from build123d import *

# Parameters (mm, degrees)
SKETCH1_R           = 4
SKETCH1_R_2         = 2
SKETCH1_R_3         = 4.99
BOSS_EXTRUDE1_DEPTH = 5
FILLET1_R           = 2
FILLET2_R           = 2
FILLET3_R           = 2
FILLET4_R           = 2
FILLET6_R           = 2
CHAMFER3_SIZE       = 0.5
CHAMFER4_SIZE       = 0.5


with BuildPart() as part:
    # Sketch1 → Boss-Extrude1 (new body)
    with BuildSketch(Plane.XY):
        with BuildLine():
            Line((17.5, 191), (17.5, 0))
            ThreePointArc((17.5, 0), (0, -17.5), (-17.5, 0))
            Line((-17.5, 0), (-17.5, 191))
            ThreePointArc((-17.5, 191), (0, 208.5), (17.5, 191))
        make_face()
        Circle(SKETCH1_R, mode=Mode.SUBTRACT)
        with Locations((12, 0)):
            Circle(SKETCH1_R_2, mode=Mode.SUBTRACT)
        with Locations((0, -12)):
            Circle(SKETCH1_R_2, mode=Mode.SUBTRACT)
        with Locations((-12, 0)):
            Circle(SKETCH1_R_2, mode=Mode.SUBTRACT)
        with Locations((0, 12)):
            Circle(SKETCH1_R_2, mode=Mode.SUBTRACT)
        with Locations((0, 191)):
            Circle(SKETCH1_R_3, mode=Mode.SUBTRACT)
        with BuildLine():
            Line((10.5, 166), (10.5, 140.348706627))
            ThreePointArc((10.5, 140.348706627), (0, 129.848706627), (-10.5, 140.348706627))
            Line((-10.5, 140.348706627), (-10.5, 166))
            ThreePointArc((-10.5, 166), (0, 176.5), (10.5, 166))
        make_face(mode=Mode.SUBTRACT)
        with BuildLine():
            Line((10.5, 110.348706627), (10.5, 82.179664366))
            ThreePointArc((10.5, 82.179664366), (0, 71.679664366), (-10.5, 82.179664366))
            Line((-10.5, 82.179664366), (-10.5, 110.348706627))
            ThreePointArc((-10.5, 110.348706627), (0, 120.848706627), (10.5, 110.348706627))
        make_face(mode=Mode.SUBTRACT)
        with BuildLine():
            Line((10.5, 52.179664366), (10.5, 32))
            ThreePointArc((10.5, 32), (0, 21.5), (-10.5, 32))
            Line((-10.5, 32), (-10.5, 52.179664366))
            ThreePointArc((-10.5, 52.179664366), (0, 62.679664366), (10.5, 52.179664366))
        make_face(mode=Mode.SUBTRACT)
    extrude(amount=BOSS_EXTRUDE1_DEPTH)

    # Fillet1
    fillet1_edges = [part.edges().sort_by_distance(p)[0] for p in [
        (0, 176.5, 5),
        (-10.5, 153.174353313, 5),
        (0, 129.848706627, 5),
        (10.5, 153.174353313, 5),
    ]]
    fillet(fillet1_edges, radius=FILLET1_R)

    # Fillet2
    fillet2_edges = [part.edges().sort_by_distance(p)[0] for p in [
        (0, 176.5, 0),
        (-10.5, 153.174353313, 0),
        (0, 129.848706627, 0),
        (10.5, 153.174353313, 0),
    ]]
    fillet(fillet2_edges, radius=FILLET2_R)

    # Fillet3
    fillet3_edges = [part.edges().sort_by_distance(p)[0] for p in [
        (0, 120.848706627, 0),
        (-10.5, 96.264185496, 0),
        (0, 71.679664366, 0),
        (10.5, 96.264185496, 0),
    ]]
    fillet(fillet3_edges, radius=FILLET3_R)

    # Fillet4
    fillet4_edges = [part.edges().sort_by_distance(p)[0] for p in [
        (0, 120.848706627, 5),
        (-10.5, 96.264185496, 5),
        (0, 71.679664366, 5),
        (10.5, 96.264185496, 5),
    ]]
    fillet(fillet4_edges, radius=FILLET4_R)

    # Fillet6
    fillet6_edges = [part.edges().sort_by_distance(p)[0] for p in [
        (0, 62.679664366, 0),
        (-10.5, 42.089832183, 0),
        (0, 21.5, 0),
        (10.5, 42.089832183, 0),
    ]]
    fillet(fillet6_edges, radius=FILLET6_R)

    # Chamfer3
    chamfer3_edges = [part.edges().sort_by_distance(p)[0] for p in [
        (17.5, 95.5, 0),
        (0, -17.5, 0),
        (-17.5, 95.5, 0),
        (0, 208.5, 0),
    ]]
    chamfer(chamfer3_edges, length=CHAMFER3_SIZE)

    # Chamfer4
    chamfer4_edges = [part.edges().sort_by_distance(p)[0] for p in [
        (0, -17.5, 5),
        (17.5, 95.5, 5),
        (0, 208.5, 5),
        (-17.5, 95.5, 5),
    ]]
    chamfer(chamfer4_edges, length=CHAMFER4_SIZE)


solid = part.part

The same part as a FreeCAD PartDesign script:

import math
import FreeCAD as App
import Part
import Sketcher
from FreeCAD import Vector
Q = App.Units.Quantity


def edges_at(feature, points):
    """Names of the edges that pass closest to the given points."""
    edges = feature.Shape.Edges
    near = lambda p: min(range(len(edges)), key=lambda i: edges[i].distToShape(Part.Vertex(*p))[0])
    return sorted({f"Edge{near(p) + 1}" for p in points})

doc = App.newDocument("Part")
params = doc.addObject("Spreadsheet::Sheet", "Params")
for row, (alias, value) in enumerate([
    ("sketch1_diameter", "4 mm"),
    ("sketch1_diameter2", "8 mm"),
    ("sketch1_radius", "17.5 mm"),
    ("sketch1_radius2", "10.5 mm"),
    ("sketch1_diameter3", "9.98 mm"),
    ("pad1_length", "5 mm"),
    ("fillet_radius", "2 mm"),
    ("fillet2_radius", "2 mm"),
    ("fillet3_radius", "2 mm"),
    ("fillet4_radius", "2 mm"),
    ("fillet5_radius", "2 mm"),
    ("chamfer_size", "0.5 mm"),
    ("chamfer2_size", "0.5 mm"),
], start=1):
    params.set(f"A{row}", alias)
    params.set(f"B{row}", "=" + value)
    params.setAlias(f"B{row}", alias)

body = doc.addObject("PartDesign::Body", "Body")

# Sketch on XY plane
sketch1 = doc.addObject("Sketcher::SketchObject", "Sketch")
body.addObject(sketch1)
sketch1.AttachmentSupport = (doc.XY_Plane, [""])
sketch1.MapMode = "FlatFace"
sketch1.addGeometry([
    Part.LineSegment(Vector(17.5, 0, 0), Vector(17.5, 191, 0)),  # 0
    Part.ArcOfCircle(Part.Circle(Vector(0, 191, 0), Vector(0, 0, 1), 17.5), math.radians(0), math.radians(180)),  # 1
    Part.LineSegment(Vector(-17.5, 191, 0), Vector(-17.5, 0, 0)),  # 2
    Part.ArcOfCircle(Part.Circle(Vector(0, 0, 0), Vector(0, 0, 1), 17.5), math.radians(180), math.radians(360)),  # 3
    Part.Circle(Vector(12, 0, 0), Vector(0, 0, 1), 2),  # 4
    Part.Circle(Vector(0, -12, 0), Vector(0, 0, 1), 2),  # 5
    Part.Circle(Vector(0, 0, 0), Vector(0, 0, 1), 4),  # 6
    Part.Circle(Vector(0, 12, 0), Vector(0, 0, 1), 2),  # 7
    Part.Circle(Vector(-12, 0, 0), Vector(0, 0, 1), 2),  # 8
    Part.LineSegment(Vector(10.5, 52.2, 0), Vector(10.5, 32, 0)),  # 9
    Part.ArcOfCircle(Part.Circle(Vector(0, 32, 0), Vector(0, 0, 1), 10.5), math.radians(180), math.radians(360)),  # 10
    Part.LineSegment(Vector(-10.5, 32, 0), Vector(-10.5, 52.2, 0)),  # 11
    Part.ArcOfCircle(Part.Circle(Vector(0, 52.2, 0), Vector(0, 0, 1), 10.5), math.radians(0), math.radians(180)),  # 12
    Part.LineSegment(Vector(10.5, 110.3, 0), Vector(10.5, 82.2, 0)),  # 13
    Part.ArcOfCircle(Part.Circle(Vector(0, 82.2, 0), Vector(0, 0, 1), 10.5), math.radians(180), math.radians(360)),  # 14
    Part.LineSegment(Vector(-10.5, 82.2, 0), Vector(-10.5, 110.3, 0)),  # 15
    Part.ArcOfCircle(Part.Circle(Vector(0, 110.3, 0), Vector(0, 0, 1), 10.5), math.radians(0), math.radians(180)),  # 16
    Part.LineSegment(Vector(10.5, 166, 0), Vector(10.5, 140.3, 0)),  # 17
    Part.ArcOfCircle(Part.Circle(Vector(0, 140.3, 0), Vector(0, 0, 1), 10.5), math.radians(180), math.radians(360)),  # 18
    Part.LineSegment(Vector(-10.5, 140.3, 0), Vector(-10.5, 166, 0)),  # 19
    Part.ArcOfCircle(Part.Circle(Vector(0, 166, 0), Vector(0, 0, 1), 10.5), math.radians(0), math.radians(180)),  # 20
    Part.Circle(Vector(0, 191, 0), Vector(0, 0, 1), 5),  # 21
], False)
sketch1.addConstraint([
    Sketcher.Constraint("Tangent", 0, 2, 1, 1),
    Sketcher.Constraint("Tangent", 1, 2, 2, 1),
    Sketcher.Constraint("Tangent", 2, 2, 3, 1),
    Sketcher.Constraint("Tangent", 3, 2, 0, 1),
    Sketcher.Constraint("Tangent", 9, 2, 10, 2),
    Sketcher.Constraint("Tangent", 10, 1, 11, 1),
    Sketcher.Constraint("Tangent", 11, 2, 12, 2),
    Sketcher.Constraint("Tangent", 12, 1, 9, 1),
    Sketcher.Constraint("Tangent", 13, 2, 14, 2),
    Sketcher.Constraint("Tangent", 14, 1, 15, 1),
    Sketcher.Constraint("Tangent", 15, 2, 16, 2),
    Sketcher.Constraint("Tangent", 16, 1, 13, 1),
    Sketcher.Constraint("Tangent", 17, 2, 18, 2),
    Sketcher.Constraint("Tangent", 18, 1, 19, 1),
    Sketcher.Constraint("Tangent", 19, 2, 20, 2),
    Sketcher.Constraint("Tangent", 20, 1, 17, 1),
    Sketcher.Constraint("Vertical", 0),
    Sketcher.Constraint("Vertical", 2),
    Sketcher.Constraint("Vertical", 9),
    Sketcher.Constraint("Vertical", 11),
    Sketcher.Constraint("Vertical", 13),
    Sketcher.Constraint("Vertical", 15),
    Sketcher.Constraint("Vertical", 17),
    Sketcher.Constraint("Vertical", 19),
    Sketcher.Constraint("Coincident", 3, 3, -1, 1),
    Sketcher.Constraint("Coincident", 6, 3, -1, 1),
    Sketcher.Constraint("Coincident", 21, 3, 1, 3),
    Sketcher.Constraint("Equal", 4, 5),
    Sketcher.Constraint("Equal", 5, 7),
    Sketcher.Constraint("Equal", 7, 8),
    Sketcher.Constraint("Equal", 12, 14),
    Sketcher.Constraint("Equal", 16, 18),
    Sketcher.Constraint("Symmetric", 5, 3, 7, 3, -1, 1),
    Sketcher.Constraint("Symmetric", 4, 3, 8, 3, -1, 1),
    Sketcher.Constraint("PointOnObject", 4, 3, -1),
    Sketcher.Constraint("PointOnObject", 5, 3, -2),
    Sketcher.Constraint("PointOnObject", 10, 3, -2),
    Sketcher.Constraint("PointOnObject", 14, 3, -2),
    Sketcher.Constraint("PointOnObject", 18, 3, -2),
    Sketcher.Constraint("Diameter", 4, Q("4 mm")),
    Sketcher.Constraint("Diameter", 6, Q("8 mm")),
    Sketcher.Constraint("Radius", 1, Q("17.5 mm")),
    Sketcher.Constraint("Radius", 10, Q("10.5 mm")),
    Sketcher.Constraint("Diameter", 21, Q("9.98 mm")),
    Sketcher.Constraint("DistanceY", 0, 1, 0, 2, Q("191 mm")),
    Sketcher.Constraint("DistanceX", -1, 1, 4, 3, Q("12 mm")),
    Sketcher.Constraint("DistanceY", 5, 3, -1, 1, Q("12 mm")),
    Sketcher.Constraint("DistanceY", -1, 1, 10, 3, Q("32 mm")),
    Sketcher.Constraint("DistanceY", -1, 1, 20, 3, Q("166 mm")),
    Sketcher.Constraint("DistanceY", 12, 3, 14, 3, Q("30 mm")),
    Sketcher.Constraint("DistanceY", 16, 3, 18, 3, Q("30 mm")),
    Sketcher.Constraint("DistanceY", 9, 2, 9, 1, Q("20.179664 mm")),
    Sketcher.Constraint("DistanceY", 13, 2, 13, 1, Q("28.169042 mm")),
])
sketch1.setExpression("Constraints[39]", "Params.sketch1_diameter")
sketch1.setExpression("Constraints[40]", "Params.sketch1_diameter2")
sketch1.setExpression("Constraints[41]", "Params.sketch1_radius")
sketch1.setExpression("Constraints[42]", "Params.sketch1_radius2")
sketch1.setExpression("Constraints[43]", "Params.sketch1_diameter3")
pad1 = doc.addObject("PartDesign::Pad", "Pad")
body.addObject(pad1)
pad1.Profile = sketch1
pad1.setExpression("Length", "Params.pad1_length")
doc.recompute()

fillet = doc.addObject("PartDesign::Fillet", "Fillet")
body.addObject(fillet)
fillet.Base = (pad1, edges_at(pad1, [
    (0, 176.5, 5),
    (-10.5, 153.174, 5),
    (0, 129.849, 5),
    (10.5, 153.174, 5),
]))
fillet.setExpression("Radius", "Params.fillet_radius")
doc.recompute()

fillet2 = doc.addObject("PartDesign::Fillet", "Fillet001")
body.addObject(fillet2)
fillet2.Base = (fillet, edges_at(fillet, [
    (0, 176.5, 0),
    (-10.5, 153.174, 0),
    (0, 129.849, 0),
    (10.5, 153.174, 0),
]))
fillet2.setExpression("Radius", "Params.fillet2_radius")
doc.recompute()

fillet3 = doc.addObject("PartDesign::Fillet", "Fillet002")
body.addObject(fillet3)
fillet3.Base = (fillet2, edges_at(fillet2, [
    (0, 120.849, 0),
    (-10.5, 96.264, 0),
    (0, 71.68, 0),
    (10.5, 96.264, 0),
]))
fillet3.setExpression("Radius", "Params.fillet3_radius")
doc.recompute()

fillet4 = doc.addObject("PartDesign::Fillet", "Fillet003")
body.addObject(fillet4)
fillet4.Base = (fillet3, edges_at(fillet3, [
    (0, 120.849, 5),
    (-10.5, 96.264, 5),
    (0, 71.68, 5),
    (10.5, 96.264, 5),
]))
fillet4.setExpression("Radius", "Params.fillet4_radius")
doc.recompute()

fillet5 = doc.addObject("PartDesign::Fillet", "Fillet004")
body.addObject(fillet5)
fillet5.Base = (fillet4, edges_at(fillet4, [
    (0, 62.68, 0),
    (-10.5, 42.09, 0),
    (0, 21.5, 0),
    (10.5, 42.09, 0),
]))
fillet5.setExpression("Radius", "Params.fillet5_radius")
doc.recompute()

chamfer = doc.addObject("PartDesign::Chamfer", "Chamfer")
body.addObject(chamfer)
chamfer.Base = (fillet5, edges_at(fillet5, [
    (17.5, 95.5, 0),
    (0, -17.5, 0),
    (-17.5, 95.5, 0),
    (0, 208.5, 0),
]))
chamfer.setExpression("Size", "Params.chamfer_size")
doc.recompute()

chamfer2 = doc.addObject("PartDesign::Chamfer", "Chamfer001")
body.addObject(chamfer2)
chamfer2.Base = (chamfer, edges_at(chamfer, [
    (0, -17.5, 5),
    (17.5, 95.5, 5),
    (0, 208.5, 5),
    (-17.5, 95.5, 5),
]))
chamfer2.setExpression("Size", "Params.chamfer2_size")

doc.recompute()
